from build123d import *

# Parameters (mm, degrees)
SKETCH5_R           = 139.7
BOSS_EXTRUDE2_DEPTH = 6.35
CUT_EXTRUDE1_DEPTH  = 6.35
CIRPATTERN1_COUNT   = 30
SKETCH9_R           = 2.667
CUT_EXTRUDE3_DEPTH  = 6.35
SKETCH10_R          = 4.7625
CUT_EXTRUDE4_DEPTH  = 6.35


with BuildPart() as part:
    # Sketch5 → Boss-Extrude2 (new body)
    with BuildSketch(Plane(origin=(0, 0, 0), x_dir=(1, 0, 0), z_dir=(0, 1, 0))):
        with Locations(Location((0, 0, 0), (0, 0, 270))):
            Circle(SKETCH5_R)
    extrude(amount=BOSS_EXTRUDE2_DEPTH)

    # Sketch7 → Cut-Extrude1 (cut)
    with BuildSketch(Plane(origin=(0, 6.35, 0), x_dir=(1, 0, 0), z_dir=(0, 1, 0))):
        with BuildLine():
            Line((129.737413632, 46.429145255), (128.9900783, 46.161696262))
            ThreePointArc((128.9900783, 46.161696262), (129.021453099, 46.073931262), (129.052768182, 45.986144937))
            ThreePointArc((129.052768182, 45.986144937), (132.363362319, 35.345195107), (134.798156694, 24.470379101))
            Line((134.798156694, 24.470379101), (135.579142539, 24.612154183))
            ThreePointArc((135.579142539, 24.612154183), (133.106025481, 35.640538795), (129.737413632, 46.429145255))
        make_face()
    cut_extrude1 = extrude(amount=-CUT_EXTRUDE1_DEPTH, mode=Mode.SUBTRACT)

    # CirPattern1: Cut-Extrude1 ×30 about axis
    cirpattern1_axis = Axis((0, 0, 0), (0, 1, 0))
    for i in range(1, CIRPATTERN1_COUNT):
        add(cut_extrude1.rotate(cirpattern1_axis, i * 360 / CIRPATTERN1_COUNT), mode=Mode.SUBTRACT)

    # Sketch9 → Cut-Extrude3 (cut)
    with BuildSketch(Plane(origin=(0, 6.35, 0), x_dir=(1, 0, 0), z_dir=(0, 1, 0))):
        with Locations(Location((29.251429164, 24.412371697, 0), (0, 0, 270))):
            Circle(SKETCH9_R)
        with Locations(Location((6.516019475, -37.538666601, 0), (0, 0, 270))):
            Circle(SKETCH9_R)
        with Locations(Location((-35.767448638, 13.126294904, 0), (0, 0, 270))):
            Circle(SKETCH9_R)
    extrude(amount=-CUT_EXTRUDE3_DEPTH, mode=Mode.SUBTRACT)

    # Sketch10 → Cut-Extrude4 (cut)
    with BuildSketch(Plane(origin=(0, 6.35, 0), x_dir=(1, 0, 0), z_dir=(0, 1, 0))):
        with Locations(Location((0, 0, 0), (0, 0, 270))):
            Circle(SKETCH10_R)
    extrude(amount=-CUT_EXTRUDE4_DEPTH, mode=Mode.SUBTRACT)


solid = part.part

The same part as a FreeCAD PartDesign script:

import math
import FreeCAD as App
import Part
import Sketcher
Q = App.Units.Quantity

doc = App.newDocument("Part")
body = doc.addObject("PartDesign::Body", "Body")

# Sketch on XZ plane
sketch1 = doc.addObject("Sketcher::SketchObject", "Sketch")
body.addObject(sketch1)
sketch1.AttachmentSupport = (doc.XZ_Plane, [""])
sketch1.MapMode = "FlatFace"
sketch1.addGeometry(Part.Circle(App.Vector(0, 0, 0), App.Vector(0, 0, 1), 140), False)
sketch1.addConstraint([
    Sketcher.Constraint("Coincident", 0, 3, -1, 1),
    Sketcher.Constraint("Diameter", 0, Q("11 in")),
])
pad1 = doc.addObject("PartDesign::Pad", "Pad")
body.addObject(pad1)
pad1.Profile = sketch1
pad1.Length = Q("0.25 in")
pad1.Reversed = True

# Sketch on XZ plane
sketch2 = doc.addObject("Sketcher::SketchObject", "Sketch001")
body.addObject(sketch2)
sketch2.AttachmentSupport = (doc.XZ_Plane, [""])
sketch2.MapMode = "FlatFace"
sketch2.AttachmentOffset = App.Placement(App.Vector(0, 0, -0.25 * 25.4), App.Rotation())
sketch2.addGeometry([
    Part.LineSegment(App.Vector(129.74, -46.43, 0), App.Vector(128.99, -46.16, 0)),  # 0
    Part.ArcOfCircle(Part.Circle(App.Vector(0, 0, 0), App.Vector(0, 0, 1), 137), math.radians(-19.69), math.radians(-19.61)),  # 1
    Part.ArcOfCircle(Part.Circle(App.Vector(0, 0, 0), App.Vector(0, 0, 1), 137), math.radians(-19.61), math.radians(-10.29)),  # 2
    Part.LineSegment(App.Vector(134.8, -24.47, 0), App.Vector(135.58, -24.61, 0)),  # 3
    Part.ArcOfCircle(Part.Circle(App.Vector(0, 0, 0), App.Vector(0, 0, 1), 137.8), math.radians(-19.69), math.radians(-10.29)),  # 4
], False)
sketch2.addConstraint([
    Sketcher.Constraint("Coincident", 0, 2, 1, 1),
    Sketcher.Constraint("Tangent", 1, 2, 2, 1),
    Sketcher.Constraint("Coincident", 2, 2, 3, 1),
    Sketcher.Constraint("Coincident", 3, 2, 4, 2),
    Sketcher.Constraint("Coincident", 4, 1, 0, 1),
    Sketcher.Constraint("Coincident", 2, 3, -1, 1),
    Sketcher.Constraint("Coincident", 4, 3, -1, 1),
    Sketcher.Constraint("Radius", 4, Q("5.425 in")),
    Sketcher.Constraint("Distance", 0, Q("0.03125 in")),
    Sketcher.Constraint("Radius", 1, Q("136.999698 mm")),
    Sketcher.Constraint("DistanceY", 4, 1, 1, 2, Q("0.443 mm")),
    Sketcher.Constraint("DistanceX", -1, 1, 0, 2, Q("128.990078 mm")),
    Sketcher.Constraint("DistanceX", -1, 1, 1, 2, Q("129.052768 mm")),
    Sketcher.Constraint("DistanceY", 2, 2, -1, 1, Q("24.470379 mm")),
    Sketcher.Constraint("DistanceY", 1, 2, 3, 2, Q("21.373991 mm")),
])
pocket1 = doc.addObject("PartDesign::Pocket", "Pocket")
body.addObject(pocket1)
pocket1.Profile = sketch2
pocket1.Length = Q("0.25 in")
pocket1.Reversed = True
doc.recompute()

polarpattern = doc.addObject("PartDesign::PolarPattern", "PolarPattern")
body.addObject(polarpattern)
polarpattern.Originals = [pocket1]
polarpattern.Axis = (doc.Y_Axis, [""])
polarpattern.Angle = 360
polarpattern.Occurrences = 30
body.Tip = polarpattern

# Sketch on XZ plane
sketch3 = doc.addObject("Sketcher::SketchObject", "Sketch002")
body.addObject(sketch3)
sketch3.AttachmentSupport = (doc.XZ_Plane, [""])
sketch3.MapMode = "FlatFace"
sketch3.AttachmentOffset = App.Placement(App.Vector(0, 0, -0.25 * 25.4), App.Rotation())
sketch3.addGeometry([
    Part.Circle(App.Vector(29.3, -24.4, 0), App.Vector(0, 0, 1), 2.7),
    Part.Circle(App.Vector(6.5, 37.5, 0), App.Vector(0, 0, 1), 2.7),
    Part.Circle(App.Vector(-35.8, -13.1, 0), App.Vector(0, 0, 1), 2.7),
], False)
sketch3.addConstraint([
    Sketcher.Constraint("Equal", 0, 1),
    Sketcher.Constraint("Equal", 1, 2),
    Sketcher.Constraint("Diameter", 0, Q("0.21 in")),
    Sketcher.Constraint("DistanceX", -1, 1, 0, 3, Q("29.251429 mm")),
    Sketcher.Constraint("DistanceY", 0, 3, -1, 1, Q("24.412372 mm")),
    Sketcher.Constraint("DistanceX", -1, 1, 1, 3, Q("6.516019 mm")),
    Sketcher.Constraint("DistanceX", 2, 3, -1, 1, Q("35.767449 mm")),
    Sketcher.Constraint("DistanceY", 0, 3, 1, 3, Q("61.951038 mm")),
    Sketcher.Constraint("DistanceY", 2, 3, 1, 3, Q("50.664962 mm")),
])
pocket2 = doc.addObject("PartDesign::Pocket", "Pocket001")
body.addObject(pocket2)
pocket2.Profile = sketch3
pocket2.Length = Q("0.25 in")
pocket2.Reversed = True

# Sketch on XZ plane
sketch4 = doc.addObject("Sketcher::SketchObject", "Sketch003")
body.addObject(sketch4)
sketch4.AttachmentSupport = (doc.XZ_Plane, [""])
sketch4.MapMode = "FlatFace"
sketch4.AttachmentOffset = App.Placement(App.Vector(0, 0, -0.25 * 25.4), App.Rotation())
sketch4.addGeometry(Part.Circle(App.Vector(0, 0, 0), App.Vector(0, 0, 1), 4.8), False)
sketch4.addConstraint([
    Sketcher.Constraint("Coincident", 0, 3, -1, 1),
    Sketcher.Constraint("Diameter", 0, Q("0.375 in")),
])
pocket3 = doc.addObject("PartDesign::Pocket", "Pocket002")
body.addObject(pocket3)
pocket3.Profile = sketch4
pocket3.Length = Q("0.25 in")
pocket3.Reversed = True

doc.recompute()
